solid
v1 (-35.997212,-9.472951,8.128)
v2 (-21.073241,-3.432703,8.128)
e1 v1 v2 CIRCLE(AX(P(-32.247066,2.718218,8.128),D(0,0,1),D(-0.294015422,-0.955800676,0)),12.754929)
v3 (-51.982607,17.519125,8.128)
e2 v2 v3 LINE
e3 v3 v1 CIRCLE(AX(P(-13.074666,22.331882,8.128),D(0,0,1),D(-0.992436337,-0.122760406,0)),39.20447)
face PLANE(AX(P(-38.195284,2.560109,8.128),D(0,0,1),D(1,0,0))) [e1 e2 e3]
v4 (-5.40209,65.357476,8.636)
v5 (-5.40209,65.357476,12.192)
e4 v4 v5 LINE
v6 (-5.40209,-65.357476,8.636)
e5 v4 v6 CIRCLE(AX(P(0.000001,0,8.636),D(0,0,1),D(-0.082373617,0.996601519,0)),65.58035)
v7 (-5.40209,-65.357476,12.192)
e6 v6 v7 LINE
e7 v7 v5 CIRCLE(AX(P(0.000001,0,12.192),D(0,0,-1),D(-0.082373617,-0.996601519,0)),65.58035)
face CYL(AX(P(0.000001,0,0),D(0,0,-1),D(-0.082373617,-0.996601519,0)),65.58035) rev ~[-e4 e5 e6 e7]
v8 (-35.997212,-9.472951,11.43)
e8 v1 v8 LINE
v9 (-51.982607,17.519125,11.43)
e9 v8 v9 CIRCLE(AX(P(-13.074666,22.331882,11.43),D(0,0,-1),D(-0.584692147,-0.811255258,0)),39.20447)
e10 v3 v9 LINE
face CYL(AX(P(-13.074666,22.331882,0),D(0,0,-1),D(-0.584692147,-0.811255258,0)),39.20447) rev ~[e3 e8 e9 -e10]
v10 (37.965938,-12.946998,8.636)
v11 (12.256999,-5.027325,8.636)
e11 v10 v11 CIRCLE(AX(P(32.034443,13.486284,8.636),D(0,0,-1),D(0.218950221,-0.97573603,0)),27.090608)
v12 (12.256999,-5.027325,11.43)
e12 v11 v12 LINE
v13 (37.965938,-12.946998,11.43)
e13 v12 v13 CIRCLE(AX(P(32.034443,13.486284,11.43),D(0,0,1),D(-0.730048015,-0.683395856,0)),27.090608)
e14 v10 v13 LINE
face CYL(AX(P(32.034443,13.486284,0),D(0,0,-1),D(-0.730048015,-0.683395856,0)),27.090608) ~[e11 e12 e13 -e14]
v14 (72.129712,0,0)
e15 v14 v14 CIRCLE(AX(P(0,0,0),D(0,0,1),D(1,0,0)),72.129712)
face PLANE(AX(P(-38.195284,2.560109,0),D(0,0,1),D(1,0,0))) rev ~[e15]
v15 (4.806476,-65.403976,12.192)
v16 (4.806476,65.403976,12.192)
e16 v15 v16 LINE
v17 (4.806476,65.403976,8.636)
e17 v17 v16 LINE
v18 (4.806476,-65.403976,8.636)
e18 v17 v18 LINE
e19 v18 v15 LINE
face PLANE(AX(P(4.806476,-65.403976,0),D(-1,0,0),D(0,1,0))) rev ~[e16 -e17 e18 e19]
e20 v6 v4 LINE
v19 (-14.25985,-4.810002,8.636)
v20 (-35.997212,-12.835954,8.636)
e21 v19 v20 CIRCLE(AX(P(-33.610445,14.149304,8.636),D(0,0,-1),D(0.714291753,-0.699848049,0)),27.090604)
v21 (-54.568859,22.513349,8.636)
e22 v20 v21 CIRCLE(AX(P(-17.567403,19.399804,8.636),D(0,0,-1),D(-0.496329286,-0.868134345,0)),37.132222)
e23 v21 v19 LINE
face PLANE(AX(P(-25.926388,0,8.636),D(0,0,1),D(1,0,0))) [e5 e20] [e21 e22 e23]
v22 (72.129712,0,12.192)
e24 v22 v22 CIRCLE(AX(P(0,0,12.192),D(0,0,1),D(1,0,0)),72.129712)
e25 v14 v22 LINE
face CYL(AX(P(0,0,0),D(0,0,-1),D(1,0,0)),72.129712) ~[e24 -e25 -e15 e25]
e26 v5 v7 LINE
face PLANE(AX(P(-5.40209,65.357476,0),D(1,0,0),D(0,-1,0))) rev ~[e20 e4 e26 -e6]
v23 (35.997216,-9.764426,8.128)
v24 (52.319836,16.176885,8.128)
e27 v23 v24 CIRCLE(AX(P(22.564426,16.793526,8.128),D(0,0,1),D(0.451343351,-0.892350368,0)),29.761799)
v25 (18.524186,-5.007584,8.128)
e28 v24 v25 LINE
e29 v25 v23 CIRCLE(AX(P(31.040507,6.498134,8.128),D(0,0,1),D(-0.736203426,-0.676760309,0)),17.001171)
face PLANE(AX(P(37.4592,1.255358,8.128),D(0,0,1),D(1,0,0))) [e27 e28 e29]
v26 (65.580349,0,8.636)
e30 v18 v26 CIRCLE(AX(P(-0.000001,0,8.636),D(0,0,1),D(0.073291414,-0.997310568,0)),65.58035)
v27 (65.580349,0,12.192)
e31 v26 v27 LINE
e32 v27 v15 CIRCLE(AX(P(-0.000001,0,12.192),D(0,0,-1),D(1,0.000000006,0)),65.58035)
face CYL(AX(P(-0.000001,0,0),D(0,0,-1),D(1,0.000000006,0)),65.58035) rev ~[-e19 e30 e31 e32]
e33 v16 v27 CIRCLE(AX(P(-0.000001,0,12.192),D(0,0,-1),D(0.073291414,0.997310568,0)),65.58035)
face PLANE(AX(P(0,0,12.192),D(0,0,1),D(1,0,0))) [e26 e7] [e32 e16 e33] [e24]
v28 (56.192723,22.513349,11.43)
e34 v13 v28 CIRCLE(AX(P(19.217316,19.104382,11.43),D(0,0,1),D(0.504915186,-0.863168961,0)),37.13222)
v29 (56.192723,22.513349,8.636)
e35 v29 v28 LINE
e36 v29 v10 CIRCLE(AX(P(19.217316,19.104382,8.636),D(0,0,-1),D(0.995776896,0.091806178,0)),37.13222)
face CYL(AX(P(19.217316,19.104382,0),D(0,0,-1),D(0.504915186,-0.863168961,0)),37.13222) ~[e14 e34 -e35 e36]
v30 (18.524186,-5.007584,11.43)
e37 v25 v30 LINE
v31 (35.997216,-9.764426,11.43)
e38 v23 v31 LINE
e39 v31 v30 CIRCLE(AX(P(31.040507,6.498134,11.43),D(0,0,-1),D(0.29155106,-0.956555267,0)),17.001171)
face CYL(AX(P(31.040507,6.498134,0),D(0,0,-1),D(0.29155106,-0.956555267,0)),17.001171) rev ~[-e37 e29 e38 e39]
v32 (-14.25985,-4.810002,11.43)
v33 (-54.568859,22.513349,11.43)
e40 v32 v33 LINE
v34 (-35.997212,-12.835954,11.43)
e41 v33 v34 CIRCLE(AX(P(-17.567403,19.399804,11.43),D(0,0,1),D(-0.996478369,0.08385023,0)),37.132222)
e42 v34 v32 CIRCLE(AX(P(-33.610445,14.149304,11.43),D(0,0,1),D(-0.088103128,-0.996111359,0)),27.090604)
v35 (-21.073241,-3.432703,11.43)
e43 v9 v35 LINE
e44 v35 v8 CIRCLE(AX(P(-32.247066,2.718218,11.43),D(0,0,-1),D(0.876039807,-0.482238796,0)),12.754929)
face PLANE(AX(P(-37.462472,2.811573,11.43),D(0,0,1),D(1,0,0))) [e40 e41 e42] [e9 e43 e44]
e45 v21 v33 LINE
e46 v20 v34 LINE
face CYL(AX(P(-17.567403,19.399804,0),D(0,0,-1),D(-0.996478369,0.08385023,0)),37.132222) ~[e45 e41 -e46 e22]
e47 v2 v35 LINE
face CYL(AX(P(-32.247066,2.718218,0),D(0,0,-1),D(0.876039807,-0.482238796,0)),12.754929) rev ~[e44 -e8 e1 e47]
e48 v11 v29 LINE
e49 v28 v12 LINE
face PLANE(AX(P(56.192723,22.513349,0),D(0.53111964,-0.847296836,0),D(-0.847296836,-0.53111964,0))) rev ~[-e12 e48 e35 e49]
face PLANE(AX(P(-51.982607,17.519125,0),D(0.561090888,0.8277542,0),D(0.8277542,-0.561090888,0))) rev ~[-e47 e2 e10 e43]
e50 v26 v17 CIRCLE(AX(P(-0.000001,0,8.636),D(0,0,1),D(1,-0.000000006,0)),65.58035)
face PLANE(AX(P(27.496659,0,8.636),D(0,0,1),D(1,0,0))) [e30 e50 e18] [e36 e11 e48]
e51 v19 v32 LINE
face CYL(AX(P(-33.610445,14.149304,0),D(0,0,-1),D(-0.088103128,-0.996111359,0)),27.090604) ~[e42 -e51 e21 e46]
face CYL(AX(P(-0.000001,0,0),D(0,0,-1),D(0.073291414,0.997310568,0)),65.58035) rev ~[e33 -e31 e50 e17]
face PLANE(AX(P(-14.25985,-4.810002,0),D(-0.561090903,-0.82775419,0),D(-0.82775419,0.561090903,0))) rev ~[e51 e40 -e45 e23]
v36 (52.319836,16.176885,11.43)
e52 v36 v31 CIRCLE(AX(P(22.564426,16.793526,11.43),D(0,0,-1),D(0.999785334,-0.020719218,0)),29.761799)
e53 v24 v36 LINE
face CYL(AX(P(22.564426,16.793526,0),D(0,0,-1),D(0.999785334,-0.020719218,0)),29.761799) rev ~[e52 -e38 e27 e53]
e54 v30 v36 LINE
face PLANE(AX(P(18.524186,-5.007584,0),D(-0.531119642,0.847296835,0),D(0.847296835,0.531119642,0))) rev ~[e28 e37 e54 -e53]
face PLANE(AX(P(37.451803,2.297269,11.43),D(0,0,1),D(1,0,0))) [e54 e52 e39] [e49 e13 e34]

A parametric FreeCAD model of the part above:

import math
import FreeCAD as App
import Part
import Sketcher
Q = App.Units.Quantity

doc = App.newDocument("Part")
body = doc.addObject("PartDesign::Body", "Body")

sketch1 = doc.addObject("Sketcher::SketchObject", "Sketch")
body.addObject(sketch1)
sketch1.AttachmentSupport = (doc.XY_Plane, [""])
sketch1.MapMode = "FlatFace"
sketch1.addGeometry([
    Part.Circle(App.Vector(0, 0, 0), App.Vector(0, 0, 1), 72.129712),
    Part.ArcOfCircle(Part.Circle(App.Vector(0.000001, 0, 0), App.Vector(0, 0, 1), 65.58035), math.radians(94.725014), math.radians(265.274986)),
    Part.LineSegment(App.Vector(-5.40209, 65.357476, 0), App.Vector(-5.40209, -65.357476, 0)),
    Part.ArcOfCircle(Part.Circle(App.Vector(-0.000001, 0, 0), App.Vector(0, 0, 1), 65.58035), math.radians(-85.796943), math.radians(0)),
    Part.LineSegment(App.Vector(4.806476, -65.403976, 0), App.Vector(4.806476, 65.403976, 0)),
    Part.ArcOfCircle(Part.Circle(App.Vector(-0.000001, 0, 0), App.Vector(0, 0, 1), 65.58035), math.radians(0), math.radians(85.796943)),
], False)
sketch1.addConstraint([
    Sketcher.Constraint("Coincident", 1, 1, 2, 1),
    Sketcher.Constraint("Coincident", 2, 2, 1, 2),
    Sketcher.Constraint("Coincident", 3, 1, 4, 1),
    Sketcher.Constraint("Coincident", 4, 2, 5, 2),
    Sketcher.Constraint("Tangent", 5, 1, 3, 2),
    Sketcher.Constraint("Vertical", 2),
    Sketcher.Constraint("Vertical", 4),
    Sketcher.Constraint("Coincident", 0, 3, -1, 1),
    Sketcher.Constraint("Coincident", 1, 3, -1, 1),
    Sketcher.Constraint("Coincident", 3, 3, -1, 1),
    Sketcher.Constraint("Equal", 1, 3),
    Sketcher.Constraint("Equal", 3, 5),
    Sketcher.Constraint("PointOnObject", 5, 1, -1),
    Sketcher.Constraint("Radius", 1, 65.58035),
    Sketcher.Constraint("Diameter", 0, 144.259424),
    Sketcher.Constraint("DistanceY", 4, 1, 4, 2, 130.807952),
    Sketcher.Constraint("DistanceY", 3, 1, 2, 2, 0.0465),
])
pad1 = doc.addObject("PartDesign::Pad", "Pad")
body.addObject(pad1)
pad1.Profile = sketch1
pad1.Length = Q("0.48 in")

sketch2 = doc.addObject("Sketcher::SketchObject", "Sketch001")
body.addObject(sketch2)
sketch2.AttachmentSupport = (doc.XY_Plane, [""])
sketch2.MapMode = "FlatFace"
sketch2.addGeometry([
    Part.LineSegment(App.Vector(-5.40209, -65.357476, 0), App.Vector(-5.40209, 65.357476, 0)),
    Part.ArcOfCircle(Part.Circle(App.Vector(0.000001, 0, 0), App.Vector(0, 0, 1), 65.58035), math.radians(94.725014), math.radians(265.274986)),
    Part.ArcOfCircle(Part.Circle(App.Vector(-33.610445, 14.149304, 0), App.Vector(0, 0, 1), 27.090604), math.radians(-95.054491), math.radians(-44.414814)),
    Part.ArcOfCircle(Part.Circle(App.Vector(-17.567403, 19.399804, 0), App.Vector(0, 0, 1), 37.132222), math.radians(175.190088), math.radians(240.242557)),
    Part.LineSegment(App.Vector(-54.568859, 22.513349, 0), App.Vector(-14.25985, -4.810002, 0)),
    Part.ArcOfCircle(Part.Circle(App.Vector(-0.000001, 0, 0), App.Vector(0, 0, 1), 65.58035), math.radians(-85.796943), math.radians(0)),
    Part.ArcOfCircle(Part.Circle(App.Vector(-0.000001, 0, 0), App.Vector(0, 0, 1), 65.58035), math.radians(0), math.radians(85.796943)),
    Part.LineSegment(App.Vector(4.806476, 65.403976, 0), App.Vector(4.806476, -65.403976, 0)),
    Part.ArcOfCircle(Part.Circle(App.Vector(19.217316, 19.104382, 0), App.Vector(0, 0, 1), 37.13222), math.radians(-59.674278), math.radians(5.267524)),
    Part.ArcOfCircle(Part.Circle(App.Vector(32.034443, 13.486284, 0), App.Vector(0, 0, 1), 27.090608), math.radians(-136.890419), math.radians(-77.352618)),
    Part.LineSegment(App.Vector(12.256999, -5.027325, 0), App.Vector(56.192723, 22.513349, 0)),
], False)
sketch2.addConstraint([
    Sketcher.Constraint("Coincident", 0, 1, 1, 2),
    Sketcher.Constraint("Coincident", 1, 1, 0, 2),
    Sketcher.Constraint("Coincident", 2, 1, 3, 2),
    Sketcher.Constraint("Coincident", 3, 1, 4, 1),
    Sketcher.Constraint("Coincident", 4, 2, 2, 2),
    Sketcher.Constraint("Tangent", 5, 2, 6, 1),
    Sketcher.Constraint("Coincident", 6, 2, 7, 1),
    Sketcher.Constraint("Coincident", 7, 2, 5, 1),
    Sketcher.Constraint("Coincident", 8, 1, 9, 2),
    Sketcher.Constraint("Coincident", 9, 1, 10, 1),
    Sketcher.Constraint("Coincident", 10, 2, 8, 2),
    Sketcher.Constraint("Vertical", 0),
    Sketcher.Constraint("Vertical", 7),
    Sketcher.Constraint("Coincident", 1, 3, -1, 1),
    Sketcher.Constraint("Coincident", 5, 3, -1, 1),
    Sketcher.Constraint("Equal", 1, 5),
    Sketcher.Constraint("Equal", 5, 6),
    Sketcher.Constraint("PointOnObject", 5, 2, -1),
    Sketcher.Constraint("Horizontal", 3, 1, 10, 2),
    Sketcher.Constraint("Radius", 1, 65.58035),
    Sketcher.Constraint("Radius", 8, 37.13222),
    Sketcher.Constraint("Radius", 2, 27.090604),
    Sketcher.Constraint("Radius", 3, 37.132222),
    Sketcher.Constraint("Radius", 9, 27.090608),
    Sketcher.Constraint("DistanceY", 7, 2, 7, 1, 130.807952),
    Sketcher.Constraint("DistanceX", -1, 1, 9, 1, 12.256999),
    Sketcher.Constraint("DistanceY", 2, 3, 3, 3, 5.250499),
    Sketcher.Constraint("DistanceY", 4, 2, 5, 3, 4.810002),
    Sketcher.Constraint("DistanceY", 1, 1, 6, 2, 0.0465),
    Sketcher.Constraint("DistanceY", -1, 1, 8, 3, 19.104382),
    Sketcher.Constraint("DistanceX", 2, 1, -1, 1, 35.997212),
    Sketcher.Constraint("DistanceX", 3, 1, -1, 1, 54.568859),
    Sketcher.Constraint("DistanceY", -1, 1, 3, 1, 22.513349),
    Sketcher.Constraint("DistanceX", 4, 2, -1, 1, 14.25985),
    Sketcher.Constraint("DistanceX", 3, 3, 8, 3, 36.784719),
    Sketcher.Constraint("DistanceY", 9, 3, 3, 3, 5.913519),
    Sketcher.Constraint("DistanceX", 8, 1, 5, 2, 27.614411),
])
pad2 = doc.addObject("PartDesign::Pad", "Pad001")
body.addObject(pad2)
pad2.Profile = sketch2
pad2.Length = Q("0.34 in")

sketch3 = doc.addObject("Sketcher::SketchObject", "Sketch002")
body.addObject(sketch3)
sketch3.AttachmentSupport = (doc.XY_Plane, [""])
sketch3.MapMode = "FlatFace"
sketch3.addGeometry([
    Part.LineSegment(App.Vector(-14.25985, -4.810002, 0), App.Vector(-54.568859, 22.513349, 0)),
    Part.ArcOfCircle(Part.Circle(App.Vector(-17.567403, 19.399804, 0), App.Vector(0, 0, 1), 37.132222), math.radians(175.190088), math.radians(240.242557)),
    Part.ArcOfCircle(Part.Circle(App.Vector(-33.610445, 14.149304, 0), App.Vector(0, 0, 1), 27.090604), math.radians(-95.054491), math.radians(-44.414814)),
    Part.ArcOfCircle(Part.Circle(App.Vector(-32.247066, 2.718218, 0), App.Vector(0, 0, 1), 12.754929), math.radians(-107.098507), math.radians(-28.831724)),
    Part.ArcOfCircle(Part.Circle(App.Vector(-13.074666, 22.331882, 0), App.Vector(0, 0, 1), 39.20447), math.radians(-172.94856), math.radians(-125.781245)),
    Part.LineSegment(App.Vector(-51.982607, 17.519125, 0), App.Vector(-21.073241, -3.432703, 0)),
    Part.LineSegment(App.Vector(56.192723, 22.513349, 0), App.Vector(12.256999, -5.027325, 0)),
    Part.ArcOfCircle(Part.Circle(App.Vector(32.034443, 13.486284, 0), App.Vector(0, 0, 1), 27.090608), math.radians(-136.890419), math.radians(-77.352618)),
    Part.ArcOfCircle(Part.Circle(App.Vector(19.217316, 19.104382, 0), App.Vector(0, 0, 1), 37.13222), math.radians(-59.674278), math.radians(5.267524)),
    Part.ArcOfCircle(Part.Circle(App.Vector(31.040507, 6.498134, 0), App.Vector(0, 0, 1), 17.001171), math.radians(-137.409002), math.radians(-73.049161)),
    Part.LineSegment(App.Vector(18.524186, -5.007584, 0), App.Vector(52.319836, 16.176885, 0)),
    Part.ArcOfCircle(Part.Circle(App.Vector(22.564426, 16.793526, 0), App.Vector(0, 0, 1), 29.761799), math.radians(-63.170095), math.radians(-1.187209)),
], False)
sketch3.addConstraint([
    Sketcher.Constraint("Coincident", 0, 2, 1, 1),
    Sketcher.Constraint("Coincident", 1, 2, 2, 1),
    Sketcher.Constraint("Coincident", 2, 2, 0, 1),
    Sketcher.Constraint("Coincident", 3, 1, 4, 2),
    Sketcher.Constraint("Coincident", 4, 1, 5, 1),
    Sketcher.Constraint("Coincident", 5, 2, 3, 2),
    Sketcher.Constraint("Coincident", 6, 2, 7, 1),
    Sketcher.Constraint("Coincident", 7, 2, 8, 1),
    Sketcher.Constraint("Coincident", 8, 2, 6, 1),
    Sketcher.Constraint("Coincident", 9, 1, 10, 1),
    Sketcher.Constraint("Coincident", 10, 2, 11, 2),
    Sketcher.Constraint("Coincident", 11, 1, 9, 2),
    Sketcher.Constraint("Radius", 11, 29.761799),
    Sketcher.Constraint("Radius", 3, 12.754929),
    Sketcher.Constraint("Radius", 4, 39.20447),
    Sketcher.Constraint("Radius", 8, 37.13222),
    Sketcher.Constraint("Radius", 9, 17.001171),
    Sketcher.Constraint("Radius", 1, 37.132222),
    Sketcher.Constraint("Radius", 2, 27.090604),
    Sketcher.Constraint("Radius", 7, 27.090608),
    Sketcher.Constraint("DistanceX", 9, 1, 7, 3, Q("0.5318999 in")),
    Sketcher.Constraint("DistanceY", 11, 1, 6, 2, Q("0.1865 in")),
    Sketcher.Constraint("DistanceY", 2, 2, -1, 1, 4.810002),
    Sketcher.Constraint("DistanceX", -1, 1, 6, 2, 12.256999),
    Sketcher.Constraint("DistanceY", 7, 2, -1, 1, 12.946998),
    Sketcher.Constraint("DistanceY", 2, 3, 1, 3, 5.250499),
    Sketcher.Constraint("DistanceX", 3, 3, 4, 3, 19.1724),
    Sketcher.Constraint("DistanceY", 8, 3, 4, 3, 3.2275),
    Sketcher.Constraint("DistanceY", 2, 2, 5, 2, 1.377299),
    Sketcher.Constraint("DistanceY", 7, 3, 10, 2, 2.690601),
    Sketcher.Constraint("DistanceY", -1, 1, 3, 3, 2.718218),
    Sketcher.Constraint("DistanceY", -1, 1, 4, 3, 22.331882),
    Sketcher.Constraint("DistanceX", 0, 2, -1, 1, 54.568859),
    Sketcher.Constraint("DistanceY", -1, 1, 0, 2, 22.513349),
    Sketcher.Constraint("DistanceX", 2, 2, -1, 1, 14.25985),
    Sketcher.Constraint("DistanceX", 5, 2, -1, 1, 21.073241),
    Sketcher.Constraint("DistanceX", -1, 1, 7, 2, 37.965938),
    Sketcher.Constraint("DistanceY", -1, 1, 8, 2, 22.513349),
    Sketcher.Constraint("DistanceX", 2, 3, 3, 3, 1.363379),
    Sketcher.Constraint("DistanceX", 4, 3, 7, 3, 45.10911),
    Sketcher.Constraint("DistanceY", 9, 3, 7, 3, 6.98815),
    Sketcher.Constraint("DistanceX", 8, 3, 9, 3, 11.82319),
    Sketcher.Constraint("DistanceX", 8, 3, 11, 3, 3.34711),
    Sketcher.Constraint("DistanceX", 0, 2, 4, 1, 2.586252),
])
pad3 = doc.addObject("PartDesign::Pad", "Pad002")
body.addObject(pad3)
pad3.Profile = sketch3
pad3.Length = Q("0.45 in")

sketch4 = doc.addObject("Sketcher::SketchObject", "Sketch003")
body.addObject(sketch4)
sketch4.AttachmentSupport = (doc.XY_Plane, [""])
sketch4.MapMode = "FlatFace"
sketch4.addGeometry([
    Part.LineSegment(App.Vector(-21.073241, -3.432703, 0), App.Vector(-51.982607, 17.519125, 0)),
    Part.ArcOfCircle(Part.Circle(App.Vector(-13.074666, 22.331882, 0), App.Vector(0, 0, 1), 39.20447), math.radians(-172.94856), math.radians(-125.781245)),
    Part.ArcOfCircle(Part.Circle(App.Vector(-32.247066, 2.718218, 0), App.Vector(0, 0, 1), 12.754929), math.radians(-107.098507), math.radians(-28.831724)),
    Part.ArcOfCircle(Part.Circle(App.Vector(22.564426, 16.793526, 0), App.Vector(0, 0, 1), 29.761799), math.radians(-63.170095), math.radians(-1.187209)),
    Part.LineSegment(App.Vector(52.319836, 16.176885, 0), App.Vector(18.524186, -5.007584, 0)),
    Part.ArcOfCircle(Part.Circle(App.Vector(31.040507, 6.498134, 0), App.Vector(0, 0, 1), 17.001171), math.radians(-137.409002), math.radians(-73.049161)),
], False)
sketch4.addConstraint([
    Sketcher.Constraint("Coincident", 0, 2, 1, 1),
    Sketcher.Constraint("Coincident", 1, 2, 2, 1),
    Sketcher.Constraint("Coincident", 2, 2, 0, 1),
    Sketcher.Constraint("Coincident", 3, 2, 4, 1),
    Sketcher.Constraint("Coincident", 4, 2, 5, 1),
    Sketcher.Constraint("Coincident", 5, 2, 3, 1),
    Sketcher.Constraint("Radius", 3, 29.761799),
    Sketcher.Constraint("Radius", 1, 39.20447),
    Sketcher.Constraint("Radius", 2, 12.754929),
    Sketcher.Constraint("Radius", 5, 17.001171),
    Sketcher.Constraint("DistanceX", 2, 3, 1, 3, 19.1724),
    Sketcher.Constraint("DistanceY", 3, 3, 0, 2, 0.725599),
    Sketcher.Constraint("DistanceY", -1, 1, 1, 3, 22.331882),
    Sketcher.Constraint("DistanceY", -1, 1, 2, 3, 2.718218),
    Sketcher.Constraint("DistanceX", 2, 2, -1, 1, 21.073241),
    Sketcher.Constraint("DistanceX", 3, 3, 5, 3, 8.476081),
    Sketcher.Constraint("DistanceX", 0, 2, 2, 3, 19.735541),
    Sketcher.Constraint("DistanceY", 5, 3, 0, 2, 11.020991),
    Sketcher.Constraint("DistanceX", 1, 2, 5, 3, 67.037719),
    Sketcher.Constraint("DistanceY", 2, 2, 2, 3, 6.150921),
    Sketcher.Constraint("DistanceX", 5, 3, 3, 2, 21.279329),
    Sketcher.Constraint("DistanceX", 4, 2, 5, 3, 12.516321),
])
pad4 = doc.addObject("PartDesign::Pad", "Pad003")
body.addObject(pad4)
pad4.Profile = sketch4
pad4.Length = Q("0.32 in")

doc.recompute()
